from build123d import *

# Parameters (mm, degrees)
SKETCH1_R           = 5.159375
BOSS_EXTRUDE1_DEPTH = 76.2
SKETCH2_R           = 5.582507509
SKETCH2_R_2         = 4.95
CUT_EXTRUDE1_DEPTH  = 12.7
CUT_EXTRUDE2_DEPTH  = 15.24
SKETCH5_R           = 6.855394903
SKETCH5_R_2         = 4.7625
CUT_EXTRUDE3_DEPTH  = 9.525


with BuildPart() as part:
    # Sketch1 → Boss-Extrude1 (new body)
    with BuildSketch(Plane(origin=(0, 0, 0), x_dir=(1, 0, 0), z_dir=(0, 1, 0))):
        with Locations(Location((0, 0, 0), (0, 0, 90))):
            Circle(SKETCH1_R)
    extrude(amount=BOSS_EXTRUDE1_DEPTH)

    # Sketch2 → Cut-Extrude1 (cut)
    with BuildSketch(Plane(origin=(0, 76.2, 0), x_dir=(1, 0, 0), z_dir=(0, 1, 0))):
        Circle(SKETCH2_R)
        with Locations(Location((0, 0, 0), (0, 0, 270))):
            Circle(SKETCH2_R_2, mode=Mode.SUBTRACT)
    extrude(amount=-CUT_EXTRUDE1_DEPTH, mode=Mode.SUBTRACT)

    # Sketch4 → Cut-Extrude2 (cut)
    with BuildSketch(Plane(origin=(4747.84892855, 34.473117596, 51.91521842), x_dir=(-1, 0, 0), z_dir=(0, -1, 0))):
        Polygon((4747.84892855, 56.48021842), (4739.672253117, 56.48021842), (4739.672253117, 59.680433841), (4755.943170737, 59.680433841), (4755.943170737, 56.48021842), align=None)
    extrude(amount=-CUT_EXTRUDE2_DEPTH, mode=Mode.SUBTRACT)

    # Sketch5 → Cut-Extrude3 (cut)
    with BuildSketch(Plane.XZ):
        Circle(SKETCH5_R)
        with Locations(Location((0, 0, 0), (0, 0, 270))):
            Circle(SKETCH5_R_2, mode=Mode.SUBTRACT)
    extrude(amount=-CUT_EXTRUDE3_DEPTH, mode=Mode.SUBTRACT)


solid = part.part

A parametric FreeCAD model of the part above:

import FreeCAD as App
import Part
import Sketcher
from FreeCAD import Vector
Q = App.Units.Quantity

doc = App.newDocument("Part")
params = doc.addObject("Spreadsheet::Sheet", "Params")
for row, (alias, value) in enumerate([
    ("sketch1_diameter", "0.40625 in"),
    ("pad1_length", "3 in"),
    ("pocket1_length", "0.5 in"),
    ("pocket2_length", "0.6 in"),
    ("sketch4_diameter", "0.375 in"),
    ("pocket3_length", "0.375 in"),
], start=1):
    params.set(f"A{row}", alias)
    params.set(f"B{row}", "=" + value)
    params.setAlias(f"B{row}", alias)

body = doc.addObject("PartDesign::Body", "Body")

sketch1 = body.newObject("Sketcher::SketchObject", "Sketch")
sketch1.AttachmentSupport = (doc.getObject("XZ_Plane"), [""])
sketch1.MapMode = "FlatFace"
sketch1.addGeometry(Part.Circle(Vector(0, 0, 0), Vector(0, 0, 1), 5.159375), False)
sketch1.addConstraint(Sketcher.Constraint("Coincident", 0, 3, -1, 1))
sketch1.addConstraint(Sketcher.Constraint("Diameter", 0, Q("0.40625 in")))
sketch1.setExpression("Constraints[1]", "Params.sketch1_diameter")
pad1 = body.newObject("PartDesign::Pad", "Pad")
pad1.Profile = sketch1
pad1.setExpression("Length", "Params.pad1_length")
pad1.Reversed = True

sketch2 = body.newObject("Sketcher::SketchObject", "Sketch001")
sketch2.AttachmentSupport = (doc.getObject("XZ_Plane"), [""])
sketch2.MapMode = "FlatFace"
sketch2.AttachmentOffset = App.Placement(Vector(0, 0, -3 * 25.4), App.Rotation())
sketch2.addGeometry(Part.Circle(Vector(0, 0, 0), Vector(0, 0, 1), 5.582508), False)
sketch2.addGeometry(Part.Circle(Vector(0, 0, 0), Vector(0, 0, 1), 4.95), False)
sketch2.addConstraint(Sketcher.Constraint("Coincident", 0, 3, -1, 1))
sketch2.addConstraint(Sketcher.Constraint("Coincident", 1, 3, -1, 1))
sketch2.addConstraint(Sketcher.Constraint("Diameter", 1, Q("9.9 mm")))
sketch2.addConstraint(Sketcher.Constraint("Diameter", 0, Q("11.165015 mm")))
pocket1 = body.newObject("PartDesign::Pocket", "Pocket")
pocket1.Profile = sketch2
pocket1.setExpression("Length", "Params.pocket1_length")
pocket1.Reversed = True

sketch3 = body.newObject("Sketcher::SketchObject", "Sketch002")
sketch3.AttachmentSupport = (doc.getObject("XZ_Plane"), [""])
sketch3.MapMode = "FlatFace"
sketch3.AttachmentOffset = App.Placement(Vector(0, 0, -34.473118), App.Rotation())
sketch3.addGeometry(Part.LineSegment(Vector(8.176675, -4.565, 0), Vector(-8.094242, -4.565, 0)), False)
sketch3.addGeometry(Part.LineSegment(Vector(-8.094242, -4.565, 0), Vector(-8.094242, -7.765215, 0)), False)
sketch3.addGeometry(Part.LineSegment(Vector(-8.094242, -7.765215, 0), Vector(8.176675, -7.765215, 0)), False)
sketch3.addGeometry(Part.LineSegment(Vector(8.176675, -7.765215, 0), Vector(8.176675, -4.565, 0)), False)
sketch3.addConstraint(Sketcher.Constraint("Coincident", 0, 2, 1, 1))
sketch3.addConstraint(Sketcher.Constraint("Coincident", 1, 2, 2, 1))
sketch3.addConstraint(Sketcher.Constraint("Coincident", 2, 2, 3, 1))
sketch3.addConstraint(Sketcher.Constraint("Coincident", 3, 2, 0, 1))
sketch3.addConstraint(Sketcher.Constraint("Horizontal", 0))
sketch3.addConstraint(Sketcher.Constraint("Vertical", 1))
sketch3.addConstraint(Sketcher.Constraint("Horizontal", 2))
sketch3.addConstraint(Sketcher.Constraint("Vertical", 3))
sketch3.addConstraint(Sketcher.Constraint("DistanceY", 0, 2, -1, 1, Q("4.565 mm")))
sketch3.addConstraint(Sketcher.Constraint("DistanceX", 0, 2, 0, 1, Q("16.270918 mm")))
sketch3.addConstraint(Sketcher.Constraint("DistanceY", 1, 2, 1, 1, Q("3.200215 mm")))
sketch3.addConstraint(Sketcher.Constraint("DistanceX", 0, 2, -1, 1, Q("8.094242 mm")))
pocket2 = body.newObject("PartDesign::Pocket", "Pocket001")
pocket2.Profile = sketch3
pocket2.setExpression("Length", "Params.pocket2_length")

sketch4 = body.newObject("Sketcher::SketchObject", "Sketch003")
sketch4.AttachmentSupport = (doc.getObject("XZ_Plane"), [""])
sketch4.MapMode = "FlatFace"
sketch4.addGeometry(Part.Circle(Vector(0, 0, 0), Vector(0, 0, 1), 6.855395), False)
sketch4.addGeometry(Part.Circle(Vector(0, 0, 0), Vector(0, 0, 1), 4.7625), False)
sketch4.addConstraint(Sketcher.Constraint("Coincident", 0, 3, -1, 1))
sketch4.addConstraint(Sketcher.Constraint("Coincident", 1, 3, -1, 1))
sketch4.addConstraint(Sketcher.Constraint("Diameter", 1, Q("0.375 in")))
sketch4.addConstraint(Sketcher.Constraint("Diameter", 0, Q("13.71079 mm")))
sketch4.setExpression("Constraints[2]", "Params.sketch4_diameter")
pocket3 = body.newObject("PartDesign::Pocket", "Pocket002")
pocket3.Profile = sketch4
pocket3.setExpression("Length", "Params.pocket3_length")

doc.recompute()
